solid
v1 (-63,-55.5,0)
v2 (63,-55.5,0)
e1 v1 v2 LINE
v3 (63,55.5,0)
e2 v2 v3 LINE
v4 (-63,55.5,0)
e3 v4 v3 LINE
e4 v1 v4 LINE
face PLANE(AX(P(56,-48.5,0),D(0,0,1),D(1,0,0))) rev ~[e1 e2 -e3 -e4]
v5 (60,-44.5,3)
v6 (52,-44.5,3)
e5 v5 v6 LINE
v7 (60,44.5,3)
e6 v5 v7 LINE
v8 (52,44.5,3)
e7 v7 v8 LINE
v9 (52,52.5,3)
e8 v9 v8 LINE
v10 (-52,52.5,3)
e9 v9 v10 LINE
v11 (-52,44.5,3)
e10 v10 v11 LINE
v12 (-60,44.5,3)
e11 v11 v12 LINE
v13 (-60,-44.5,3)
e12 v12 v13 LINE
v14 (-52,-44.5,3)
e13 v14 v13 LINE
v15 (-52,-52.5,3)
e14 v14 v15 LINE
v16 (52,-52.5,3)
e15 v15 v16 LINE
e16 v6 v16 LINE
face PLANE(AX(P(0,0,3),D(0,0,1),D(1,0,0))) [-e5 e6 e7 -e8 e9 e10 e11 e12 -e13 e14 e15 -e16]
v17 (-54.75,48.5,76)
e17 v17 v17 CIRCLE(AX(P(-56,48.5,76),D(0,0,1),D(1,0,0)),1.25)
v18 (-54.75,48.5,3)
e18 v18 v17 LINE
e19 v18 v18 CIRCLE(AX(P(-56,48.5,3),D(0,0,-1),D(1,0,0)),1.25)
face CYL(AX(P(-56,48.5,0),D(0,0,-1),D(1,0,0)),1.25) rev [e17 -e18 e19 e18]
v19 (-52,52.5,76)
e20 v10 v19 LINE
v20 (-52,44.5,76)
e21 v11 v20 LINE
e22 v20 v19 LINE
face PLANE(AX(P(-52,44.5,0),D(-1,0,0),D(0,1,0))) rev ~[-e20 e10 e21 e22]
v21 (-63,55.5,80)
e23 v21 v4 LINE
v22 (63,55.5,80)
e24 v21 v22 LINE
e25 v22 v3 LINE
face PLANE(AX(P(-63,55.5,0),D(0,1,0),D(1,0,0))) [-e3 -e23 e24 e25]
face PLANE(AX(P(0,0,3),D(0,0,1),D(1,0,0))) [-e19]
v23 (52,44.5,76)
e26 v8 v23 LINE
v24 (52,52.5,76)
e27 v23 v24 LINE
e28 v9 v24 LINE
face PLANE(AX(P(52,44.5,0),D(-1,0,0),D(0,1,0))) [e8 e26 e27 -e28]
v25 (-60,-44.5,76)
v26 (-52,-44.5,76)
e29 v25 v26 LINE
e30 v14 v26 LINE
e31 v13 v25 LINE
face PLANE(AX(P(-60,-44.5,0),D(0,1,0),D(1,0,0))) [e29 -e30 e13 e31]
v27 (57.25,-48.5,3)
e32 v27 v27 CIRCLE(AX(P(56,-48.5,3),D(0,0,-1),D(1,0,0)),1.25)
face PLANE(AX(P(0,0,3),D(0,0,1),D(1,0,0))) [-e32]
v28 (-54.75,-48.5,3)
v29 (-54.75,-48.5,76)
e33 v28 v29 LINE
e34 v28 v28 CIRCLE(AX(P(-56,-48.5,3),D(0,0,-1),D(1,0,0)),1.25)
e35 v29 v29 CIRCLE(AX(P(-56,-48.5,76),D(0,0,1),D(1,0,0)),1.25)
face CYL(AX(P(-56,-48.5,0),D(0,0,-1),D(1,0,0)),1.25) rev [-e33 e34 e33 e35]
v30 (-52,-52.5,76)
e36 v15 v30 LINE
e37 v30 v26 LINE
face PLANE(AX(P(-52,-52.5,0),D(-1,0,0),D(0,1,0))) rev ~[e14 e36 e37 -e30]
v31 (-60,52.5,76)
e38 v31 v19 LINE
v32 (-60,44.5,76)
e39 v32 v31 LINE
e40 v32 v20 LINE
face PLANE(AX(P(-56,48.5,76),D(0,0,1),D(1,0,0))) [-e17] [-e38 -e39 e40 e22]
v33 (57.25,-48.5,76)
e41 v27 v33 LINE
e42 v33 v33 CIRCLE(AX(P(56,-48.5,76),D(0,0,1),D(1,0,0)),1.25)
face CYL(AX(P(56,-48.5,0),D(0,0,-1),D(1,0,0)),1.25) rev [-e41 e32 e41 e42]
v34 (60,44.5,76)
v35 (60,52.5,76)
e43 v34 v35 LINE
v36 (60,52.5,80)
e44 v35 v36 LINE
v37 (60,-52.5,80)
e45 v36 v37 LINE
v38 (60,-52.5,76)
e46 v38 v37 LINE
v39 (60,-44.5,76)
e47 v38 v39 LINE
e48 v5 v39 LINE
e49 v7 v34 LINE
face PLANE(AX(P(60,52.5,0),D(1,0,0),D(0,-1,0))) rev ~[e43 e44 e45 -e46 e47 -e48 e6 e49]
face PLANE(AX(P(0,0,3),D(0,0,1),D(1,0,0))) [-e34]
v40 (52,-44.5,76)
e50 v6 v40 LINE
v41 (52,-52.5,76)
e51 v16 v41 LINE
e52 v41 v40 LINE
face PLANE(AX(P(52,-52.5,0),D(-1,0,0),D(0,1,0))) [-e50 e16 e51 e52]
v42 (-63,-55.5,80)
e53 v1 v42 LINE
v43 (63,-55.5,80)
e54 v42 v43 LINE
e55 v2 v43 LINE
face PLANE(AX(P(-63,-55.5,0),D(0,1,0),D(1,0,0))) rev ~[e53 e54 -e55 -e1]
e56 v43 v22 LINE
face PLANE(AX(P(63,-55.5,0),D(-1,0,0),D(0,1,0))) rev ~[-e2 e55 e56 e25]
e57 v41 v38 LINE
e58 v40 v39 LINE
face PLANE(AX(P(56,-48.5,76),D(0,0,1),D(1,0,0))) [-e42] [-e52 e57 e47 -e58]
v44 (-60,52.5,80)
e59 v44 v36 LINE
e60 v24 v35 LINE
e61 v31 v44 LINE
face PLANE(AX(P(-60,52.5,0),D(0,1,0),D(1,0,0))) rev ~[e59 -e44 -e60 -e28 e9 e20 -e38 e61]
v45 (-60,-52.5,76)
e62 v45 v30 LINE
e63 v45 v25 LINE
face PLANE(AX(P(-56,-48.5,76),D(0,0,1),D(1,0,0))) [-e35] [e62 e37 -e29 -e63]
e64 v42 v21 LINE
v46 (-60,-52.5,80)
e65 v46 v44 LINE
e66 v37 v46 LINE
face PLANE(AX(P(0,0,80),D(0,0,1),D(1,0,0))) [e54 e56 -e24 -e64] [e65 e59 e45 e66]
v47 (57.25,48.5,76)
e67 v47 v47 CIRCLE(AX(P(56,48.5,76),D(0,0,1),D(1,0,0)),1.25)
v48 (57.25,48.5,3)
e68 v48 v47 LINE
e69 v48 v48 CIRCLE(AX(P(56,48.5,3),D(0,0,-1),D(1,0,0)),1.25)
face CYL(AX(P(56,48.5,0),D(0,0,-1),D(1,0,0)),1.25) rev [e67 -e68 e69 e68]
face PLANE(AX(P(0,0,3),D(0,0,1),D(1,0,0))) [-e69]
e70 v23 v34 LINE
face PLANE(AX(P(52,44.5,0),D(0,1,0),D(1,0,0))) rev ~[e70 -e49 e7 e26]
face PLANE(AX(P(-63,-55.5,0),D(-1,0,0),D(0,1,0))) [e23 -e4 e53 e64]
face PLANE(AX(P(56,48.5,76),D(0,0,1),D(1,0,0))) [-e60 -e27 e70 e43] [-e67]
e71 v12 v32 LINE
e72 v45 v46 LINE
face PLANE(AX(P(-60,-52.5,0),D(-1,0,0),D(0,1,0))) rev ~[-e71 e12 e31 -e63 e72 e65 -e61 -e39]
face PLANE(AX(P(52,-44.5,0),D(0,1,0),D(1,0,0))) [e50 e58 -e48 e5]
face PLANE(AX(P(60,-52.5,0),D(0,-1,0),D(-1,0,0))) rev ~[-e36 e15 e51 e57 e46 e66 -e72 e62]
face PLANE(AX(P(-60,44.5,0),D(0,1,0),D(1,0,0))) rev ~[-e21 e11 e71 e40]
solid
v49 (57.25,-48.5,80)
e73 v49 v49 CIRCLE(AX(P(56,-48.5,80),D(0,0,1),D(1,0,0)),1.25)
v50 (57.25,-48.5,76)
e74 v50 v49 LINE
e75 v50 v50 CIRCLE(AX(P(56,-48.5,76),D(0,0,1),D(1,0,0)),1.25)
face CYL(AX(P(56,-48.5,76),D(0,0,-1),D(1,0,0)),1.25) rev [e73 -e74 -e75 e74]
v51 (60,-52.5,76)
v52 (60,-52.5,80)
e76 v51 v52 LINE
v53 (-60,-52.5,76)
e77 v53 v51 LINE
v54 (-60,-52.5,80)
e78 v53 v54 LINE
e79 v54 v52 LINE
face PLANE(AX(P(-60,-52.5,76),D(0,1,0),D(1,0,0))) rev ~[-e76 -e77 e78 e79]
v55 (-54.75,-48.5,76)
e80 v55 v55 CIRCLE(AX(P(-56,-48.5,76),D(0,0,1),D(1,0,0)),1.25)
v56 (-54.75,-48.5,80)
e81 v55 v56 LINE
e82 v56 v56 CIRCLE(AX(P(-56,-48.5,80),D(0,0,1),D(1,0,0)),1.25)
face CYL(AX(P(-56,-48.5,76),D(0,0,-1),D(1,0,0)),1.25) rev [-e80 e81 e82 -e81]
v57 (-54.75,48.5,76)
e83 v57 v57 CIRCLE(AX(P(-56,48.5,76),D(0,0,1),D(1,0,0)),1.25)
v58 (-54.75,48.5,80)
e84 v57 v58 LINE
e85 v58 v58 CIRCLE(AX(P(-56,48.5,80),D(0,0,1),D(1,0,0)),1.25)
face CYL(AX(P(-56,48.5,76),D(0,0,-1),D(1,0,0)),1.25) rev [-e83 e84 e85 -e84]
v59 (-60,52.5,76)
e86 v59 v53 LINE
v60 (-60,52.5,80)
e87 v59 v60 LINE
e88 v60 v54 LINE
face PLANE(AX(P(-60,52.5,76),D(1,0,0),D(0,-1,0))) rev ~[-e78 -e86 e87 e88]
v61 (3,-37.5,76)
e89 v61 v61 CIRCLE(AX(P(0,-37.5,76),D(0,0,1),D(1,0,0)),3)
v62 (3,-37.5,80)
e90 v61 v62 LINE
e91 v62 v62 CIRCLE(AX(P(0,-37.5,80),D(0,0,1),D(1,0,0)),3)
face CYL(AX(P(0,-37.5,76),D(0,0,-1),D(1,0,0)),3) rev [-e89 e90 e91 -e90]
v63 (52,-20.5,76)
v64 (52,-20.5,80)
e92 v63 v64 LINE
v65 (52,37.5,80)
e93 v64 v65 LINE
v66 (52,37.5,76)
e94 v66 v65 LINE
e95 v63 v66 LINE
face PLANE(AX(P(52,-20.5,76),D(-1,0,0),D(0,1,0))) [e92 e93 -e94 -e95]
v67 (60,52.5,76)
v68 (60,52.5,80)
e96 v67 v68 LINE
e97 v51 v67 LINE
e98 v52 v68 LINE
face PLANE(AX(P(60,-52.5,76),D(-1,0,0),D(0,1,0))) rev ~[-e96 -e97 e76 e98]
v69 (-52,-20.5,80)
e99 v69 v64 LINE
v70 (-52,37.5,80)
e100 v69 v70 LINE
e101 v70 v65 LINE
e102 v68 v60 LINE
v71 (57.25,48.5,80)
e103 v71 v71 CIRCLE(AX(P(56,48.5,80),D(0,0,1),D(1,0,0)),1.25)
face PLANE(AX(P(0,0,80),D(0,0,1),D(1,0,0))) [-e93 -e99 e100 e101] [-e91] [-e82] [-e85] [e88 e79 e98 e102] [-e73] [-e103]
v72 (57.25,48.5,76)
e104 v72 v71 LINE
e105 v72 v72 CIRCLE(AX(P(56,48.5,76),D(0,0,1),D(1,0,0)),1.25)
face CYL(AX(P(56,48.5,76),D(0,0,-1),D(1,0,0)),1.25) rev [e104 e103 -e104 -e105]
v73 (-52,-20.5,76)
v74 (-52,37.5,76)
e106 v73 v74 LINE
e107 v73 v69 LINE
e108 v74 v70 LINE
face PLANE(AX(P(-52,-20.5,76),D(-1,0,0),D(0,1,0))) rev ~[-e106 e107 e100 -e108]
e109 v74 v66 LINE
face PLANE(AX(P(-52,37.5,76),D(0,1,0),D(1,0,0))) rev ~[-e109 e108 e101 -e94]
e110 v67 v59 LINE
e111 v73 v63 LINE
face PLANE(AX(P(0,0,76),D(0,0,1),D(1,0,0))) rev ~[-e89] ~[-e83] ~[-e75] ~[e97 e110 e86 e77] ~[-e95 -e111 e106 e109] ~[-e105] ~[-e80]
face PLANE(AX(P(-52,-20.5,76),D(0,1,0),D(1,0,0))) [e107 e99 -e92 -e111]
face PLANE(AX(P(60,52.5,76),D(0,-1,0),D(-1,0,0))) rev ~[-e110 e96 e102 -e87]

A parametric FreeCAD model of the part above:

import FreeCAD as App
import Part
import Sketcher

V = App.Vector
Q = App.Units.Quantity

doc = App.newDocument("Part")
body = doc.addObject("PartDesign::Body", "Body")

sketch1 = body.newObject("Sketcher::SketchObject", "Sketch")
sketch1.AttachmentSupport = (doc.getObject("XY_Plane"), [""])
sketch1.MapMode = "FlatFace"
sketch1.addGeometry(Part.LineSegment(V(-63, 56, 0), V(-63, -56, 0)), False)
sketch1.addGeometry(Part.LineSegment(V(-63, -56, 0), V(63, -56, 0)), False)
sketch1.addGeometry(Part.LineSegment(V(63, -56, 0), V(63, 56, 0)), False)
sketch1.addGeometry(Part.LineSegment(V(63, 56, 0), V(-63, 56, 0)), False)
sketch1.addConstraint(Sketcher.Constraint("Coincident", 0, 2, 1, 1))
sketch1.addConstraint(Sketcher.Constraint("Coincident", 1, 2, 2, 1))
sketch1.addConstraint(Sketcher.Constraint("Coincident", 2, 2, 3, 1))
sketch1.addConstraint(Sketcher.Constraint("Coincident", 3, 2, 0, 1))
sketch1.addConstraint(Sketcher.Constraint("Vertical", 0))
sketch1.addConstraint(Sketcher.Constraint("Horizontal", 1))
sketch1.addConstraint(Sketcher.Constraint("Vertical", 2))
sketch1.addConstraint(Sketcher.Constraint("Horizontal", 3))
sketch1.addConstraint(Sketcher.Constraint("Symmetric", 0, 2, 2, 2, -1, 1))
sketch1.addConstraint(Sketcher.Constraint("DistanceX", 1, 1, 1, 2, Q("126 mm")))
sketch1.addConstraint(Sketcher.Constraint("DistanceY", 0, 2, 0, 1, Q("111 mm")))
pad1 = body.newObject("PartDesign::Pad", "Pad")
pad1.Profile = sketch1
pad1.Length = 3

sketch2 = body.newObject("Sketcher::SketchObject", "Sketch001")
sketch2.AttachmentSupport = (doc.getObject("XY_Plane"), [""])
sketch2.MapMode = "FlatFace"
sketch2.addGeometry(Part.LineSegment(V(-63, 56, 0), V(-63, -56, 0)), False)
sketch2.addGeometry(Part.LineSegment(V(-63, -56, 0), V(63, -56, 0)), False)
sketch2.addGeometry(Part.LineSegment(V(63, -56, 0), V(63, 56, 0)), False)
sketch2.addGeometry(Part.LineSegment(V(63, 56, 0), V(-63, 56, 0)), False)
sketch2.addGeometry(Part.LineSegment(V(60, 52, 0), V(60, -52, 0)), False)
sketch2.addGeometry(Part.LineSegment(V(60, -52, 0), V(-60, -52, 0)), False)
sketch2.addGeometry(Part.LineSegment(V(-60, -52, 0), V(-60, 52, 0)), False)
sketch2.addGeometry(Part.LineSegment(V(-60, 52, 0), V(60, 52, 0)), False)
sketch2.addConstraint(Sketcher.Constraint("Coincident", 0, 2, 1, 1))
sketch2.addConstraint(Sketcher.Constraint("Coincident", 1, 2, 2, 1))
sketch2.addConstraint(Sketcher.Constraint("Coincident", 2, 2, 3, 1))
sketch2.addConstraint(Sketcher.Constraint("Coincident", 3, 2, 0, 1))
sketch2.addConstraint(Sketcher.Constraint("Coincident", 4, 2, 5, 1))
sketch2.addConstraint(Sketcher.Constraint("Coincident", 5, 2, 6, 1))
sketch2.addConstraint(Sketcher.Constraint("Coincident", 6, 2, 7, 1))
sketch2.addConstraint(Sketcher.Constraint("Coincident", 7, 2, 4, 1))
sketch2.addConstraint(Sketcher.Constraint("Vertical", 0))
sketch2.addConstraint(Sketcher.Constraint("Horizontal", 1))
sketch2.addConstraint(Sketcher.Constraint("Vertical", 2))
sketch2.addConstraint(Sketcher.Constraint("Horizontal", 3))
sketch2.addConstraint(Sketcher.Constraint("Vertical", 4))
sketch2.addConstraint(Sketcher.Constraint("Horizontal", 5))
sketch2.addConstraint(Sketcher.Constraint("Vertical", 6))
sketch2.addConstraint(Sketcher.Constraint("Horizontal", 7))
sketch2.addConstraint(Sketcher.Constraint("Symmetric", 0, 2, 2, 2, -1, 1))
sketch2.addConstraint(Sketcher.Constraint("Symmetric", 4, 2, 6, 2, -1, 1))
sketch2.addConstraint(Sketcher.Constraint("DistanceX", 1, 1, 1, 2, Q("126 mm")))
sketch2.addConstraint(Sketcher.Constraint("DistanceX", 5, 2, 5, 1, Q("120 mm")))
sketch2.addConstraint(Sketcher.Constraint("DistanceY", 0, 2, 0, 1, Q("111 mm")))
sketch2.addConstraint(Sketcher.Constraint("DistanceY", 4, 2, 4, 1, Q("105 mm")))
pad2 = body.newObject("PartDesign::Pad", "Pad001")
pad2.Profile = sketch2
pad2.Length = 80

sketch3 = body.newObject("Sketcher::SketchObject", "Sketch002")
sketch3.AttachmentSupport = (doc.getObject("XY_Plane"), [""])
sketch3.MapMode = "FlatFace"
sketch3.addGeometry(Part.LineSegment(V(52, -44.5, 0), V(52, -52.5, 0)), False)
sketch3.addGeometry(Part.LineSegment(V(52, -52.5, 0), V(60, -52.5, 0)), False)
sketch3.addGeometry(Part.LineSegment(V(60, -52.5, 0), V(60, -44.5, 0)), False)
sketch3.addGeometry(Part.LineSegment(V(60, -44.5, 0), V(52, -44.5, 0)), False)
sketch3.addGeometry(Part.Circle(V(56, -48.5, 0), V(0, 0, 1), 1.2), False)
sketch3.addGeometry(Part.LineSegment(V(52, 52.5, 0), V(52, 44.5, 0)), False)
sketch3.addGeometry(Part.LineSegment(V(52, 44.5, 0), V(60, 44.5, 0)), False)
sketch3.addGeometry(Part.LineSegment(V(60, 44.5, 0), V(60, 52.5, 0)), False)
sketch3.addGeometry(Part.LineSegment(V(60, 52.5, 0), V(52, 52.5, 0)), False)
sketch3.addGeometry(Part.Circle(V(56, 48.5, 0), V(0, 0, 1), 1.2), False)
sketch3.addGeometry(Part.LineSegment(V(-60, -44.5, 0), V(-60, -52.5, 0)), False)
sketch3.addGeometry(Part.LineSegment(V(-60, -52.5, 0), V(-52, -52.5, 0)), False)
sketch3.addGeometry(Part.LineSegment(V(-52, -52.5, 0), V(-52, -44.5, 0)), False)
sketch3.addGeometry(Part.LineSegment(V(-52, -44.5, 0), V(-60, -44.5, 0)), False)
sketch3.addGeometry(Part.Circle(V(-56, -48.5, 0), V(0, 0, 1), 1.2), False)
sketch3.addGeometry(Part.LineSegment(V(-60, 52.5, 0), V(-60, 44.5, 0)), False)
sketch3.addGeometry(Part.LineSegment(V(-60, 44.5, 0), V(-52, 44.5, 0)), False)
sketch3.addGeometry(Part.LineSegment(V(-52, 44.5, 0), V(-52, 52.5, 0)), False)
sketch3.addGeometry(Part.LineSegment(V(-52, 52.5, 0), V(-60, 52.5, 0)), False)
sketch3.addGeometry(Part.Circle(V(-56, 48.5, 0), V(0, 0, 1), 1.2), False)
sketch3.addConstraint(Sketcher.Constraint("Coincident", 0, 2, 1, 1))
sketch3.addConstraint(Sketcher.Constraint("Coincident", 1, 2, 2, 1))
sketch3.addConstraint(Sketcher.Constraint("Coincident", 2, 2, 3, 1))
sketch3.addConstraint(Sketcher.Constraint("Coincident", 3, 2, 0, 1))
sketch3.addConstraint(Sketcher.Constraint("Coincident", 5, 2, 6, 1))
sketch3.addConstraint(Sketcher.Constraint("Coincident", 6, 2, 7, 1))
sketch3.addConstraint(Sketcher.Constraint("Coincident", 7, 2, 8, 1))
sketch3.addConstraint(Sketcher.Constraint("Coincident", 8, 2, 5, 1))
sketch3.addConstraint(Sketcher.Constraint("Coincident", 10, 2, 11, 1))
sketch3.addConstraint(Sketcher.Constraint("Coincident", 11, 2, 12, 1))
sketch3.addConstraint(Sketcher.Constraint("Coincident", 12, 2, 13, 1))
sketch3.addConstraint(Sketcher.Constraint("Coincident", 13, 2, 10, 1))
sketch3.addConstraint(Sketcher.Constraint("Coincident", 15, 2, 16, 1))
sketch3.addConstraint(Sketcher.Constraint("Coincident", 16, 2, 17, 1))
sketch3.addConstraint(Sketcher.Constraint("Coincident", 17, 2, 18, 1))
sketch3.addConstraint(Sketcher.Constraint("Coincident", 18, 2, 15, 1))
sketch3.addConstraint(Sketcher.Constraint("Vertical", 0))
sketch3.addConstraint(Sketcher.Constraint("Horizontal", 1))
sketch3.addConstraint(Sketcher.Constraint("Vertical", 2))
sketch3.addConstraint(Sketcher.Constraint("Horizontal", 3))
sketch3.addConstraint(Sketcher.Constraint("Vertical", 5))
sketch3.addConstraint(Sketcher.Constraint("Horizontal", 6))
sketch3.addConstraint(Sketcher.Constraint("Vertical", 7))
sketch3.addConstraint(Sketcher.Constraint("Horizontal", 8))
sketch3.addConstraint(Sketcher.Constraint("Vertical", 10))
sketch3.addConstraint(Sketcher.Constraint("Horizontal", 11))
sketch3.addConstraint(Sketcher.Constraint("Vertical", 12))
sketch3.addConstraint(Sketcher.Constraint("Horizontal", 13))
sketch3.addConstraint(Sketcher.Constraint("Vertical", 15))
sketch3.addConstraint(Sketcher.Constraint("Horizontal", 16))
sketch3.addConstraint(Sketcher.Constraint("Vertical", 17))
sketch3.addConstraint(Sketcher.Constraint("Horizontal", 18))
sketch3.addConstraint(Sketcher.Constraint("Equal", 4, 9))
sketch3.addConstraint(Sketcher.Constraint("Equal", 9, 14))
sketch3.addConstraint(Sketcher.Constraint("Equal", 14, 19))
sketch3.addConstraint(Sketcher.Constraint("Symmetric", 9, 3, 14, 3, -1, 1))
sketch3.addConstraint(Sketcher.Constraint("Symmetric", 4, 3, 19, 3, -1, 1))
sketch3.addConstraint(Sketcher.Constraint("Symmetric", 7, 2, 10, 2, -1, 1))
sketch3.addConstraint(Sketcher.Constraint("Symmetric", 5, 2, 12, 2, -1, 1))
sketch3.addConstraint(Sketcher.Constraint("Symmetric", 2, 2, 15, 2, -1, 1))
sketch3.addConstraint(Sketcher.Constraint("Symmetric", 0, 2, 17, 2, -1, 1))
sketch3.addConstraint(Sketcher.Constraint("Symmetric", 4, 3, 14, 3, -2))
sketch3.addConstraint(Sketcher.Constraint("Symmetric", 1, 2, 10, 2, -2))
sketch3.addConstraint(Sketcher.Constraint("Symmetric", 3, 2, 12, 2, -2))
sketch3.addConstraint(Sketcher.Constraint("Equal", 18, 0))
sketch3.addConstraint(Sketcher.Constraint("Diameter", 4, Q("2.5 mm")))
sketch3.addConstraint(Sketcher.Constraint("DistanceX", 1, 1, 1, 2, Q("8 mm")))
sketch3.addConstraint(Sketcher.Constraint("DistanceX", -1, 1, 4, 3, Q("56 mm")))
sketch3.addConstraint(Sketcher.Constraint("DistanceX", -1, 1, 0, 2, Q("52 mm")))
sketch3.addConstraint(Sketcher.Constraint("DistanceY", 4, 3, 9, 3, Q("97 mm")))
sketch3.addConstraint(Sketcher.Constraint("DistanceY", 0, 2, 4, 3, Q("4 mm")))
pad3 = body.newObject("PartDesign::Pad", "Pad002")
pad3.Profile = sketch3
pad3.Length = 76
body2 = doc.addObject("PartDesign::Body", "Body001")

sketch4 = body2.newObject("Sketcher::SketchObject", "Sketch003")
sketch4.AttachmentSupport = (doc.getObject("XY_Plane001"), [""])
sketch4.MapMode = "FlatFace"
sketch4.addGeometry(Part.LineSegment(V(-60, -52.5, 0), V(60, -52.5, 0)), False)
sketch4.addGeometry(Part.LineSegment(V(60, -52.5, 0), V(60, 52.5, 0)), False)
sketch4.addGeometry(Part.LineSegment(V(60, 52.5, 0), V(-60, 52.5, 0)), False)
sketch4.addGeometry(Part.LineSegment(V(-60, 52.5, 0), V(-60, -52.5, 0)), False)
sketch4.addGeometry(Part.Circle(V(-56, -48.5, 0), V(0, 0, 1), 1.2), False)
sketch4.addGeometry(Part.Circle(V(0, -37.5, 0), V(0, 0, 1), 3), False)
sketch4.addGeometry(Part.Circle(V(56, -48.5, 0), V(0, 0, 1), 1.2), False)
sketch4.addGeometry(Part.Circle(V(-56, 48.5, 0), V(0, 0, 1), 1.2), False)
sketch4.addGeometry(Part.LineSegment(V(52, -20.5, 0), V(-52, -20.5, 0)), False)
sketch4.addGeometry(Part.LineSegment(V(-52, -20.5, 0), V(-52, 37.5, 0)), False)
sketch4.addGeometry(Part.LineSegment(V(-52, 37.5, 0), V(52, 37.5, 0)), False)
sketch4.addGeometry(Part.LineSegment(V(52, 37.5, 0), V(52, -20.5, 0)), False)
sketch4.addGeometry(Part.Circle(V(56, 48.5, 0), V(0, 0, 1), 1.2), False)
sketch4.addConstraint(Sketcher.Constraint("Coincident", 0, 2, 1, 1))
sketch4.addConstraint(Sketcher.Constraint("Coincident", 1, 2, 2, 1))
sketch4.addConstraint(Sketcher.Constraint("Coincident", 2, 2, 3, 1))
sketch4.addConstraint(Sketcher.Constraint("Coincident", 3, 2, 0, 1))
sketch4.addConstraint(Sketcher.Constraint("Coincident", 8, 2, 9, 1))
sketch4.addConstraint(Sketcher.Constraint("Coincident", 9, 2, 10, 1))
sketch4.addConstraint(Sketcher.Constraint("Coincident", 10, 2, 11, 1))
sketch4.addConstraint(Sketcher.Constraint("Coincident", 11, 2, 8, 1))
sketch4.addConstraint(Sketcher.Constraint("Horizontal", 0))
sketch4.addConstraint(Sketcher.Constraint("Vertical", 1))
sketch4.addConstraint(Sketcher.Constraint("Horizontal", 2))
sketch4.addConstraint(Sketcher.Constraint("Vertical", 3))
sketch4.addConstraint(Sketcher.Constraint("Horizontal", 8))
sketch4.addConstraint(Sketcher.Constraint("Vertical", 9))
sketch4.addConstraint(Sketcher.Constraint("Horizontal", 10))
sketch4.addConstraint(Sketcher.Constraint("Vertical", 11))
sketch4.addConstraint(Sketcher.Constraint("Equal", 4, 6))
sketch4.addConstraint(Sketcher.Constraint("Equal", 6, 7))
sketch4.addConstraint(Sketcher.Constraint("Equal", 7, 12))
sketch4.addConstraint(Sketcher.Constraint("Symmetric", 6, 3, 7, 3, -1, 1))
sketch4.addConstraint(Sketcher.Constraint("Symmetric", 4, 3, 12, 3, -1, 1))
sketch4.addConstraint(Sketcher.Constraint("Symmetric", 0, 2, 2, 2, -1, 1))
sketch4.addConstraint(Sketcher.Constraint("Symmetric", 4, 3, 6, 3, -2))
sketch4.addConstraint(Sketcher.Constraint("PointOnObject", 5, 3, -2))
sketch4.addConstraint(Sketcher.Constraint("Diameter", 5, Q("6 mm")))
sketch4.addConstraint(Sketcher.Constraint("Diameter", 4, Q("2.5 mm")))
sketch4.addConstraint(Sketcher.Constraint("DistanceX", 0, 1, 0, 2, Q("120 mm")))
sketch4.addConstraint(Sketcher.Constraint("DistanceX", 8, 2, 8, 1, Q("104 mm")))
sketch4.addConstraint(Sketcher.Constraint("DistanceY", 1, 1, 1, 2, Q("105 mm")))
sketch4.addConstraint(Sketcher.Constraint("DistanceY", 9, 1, 9, 2, Q("58 mm")))
sketch4.addConstraint(Sketcher.Constraint("DistanceX", 4, 3, -1, 1, Q("56 mm")))
sketch4.addConstraint(Sketcher.Constraint("DistanceX", 8, 2, -1, 1, Q("52 mm")))
sketch4.addConstraint(Sketcher.Constraint("DistanceY", 4, 3, 5, 3, Q("11 mm")))
sketch4.addConstraint(Sketcher.Constraint("DistanceY", 4, 3, 7, 3, Q("97 mm")))
sketch4.addConstraint(Sketcher.Constraint("DistanceY", 4, 3, 8, 2, Q("28 mm")))
pad4 = body2.newObject("PartDesign::Pad", "Pad003")
pad4.Profile = sketch4
pad4.Length = 4
body3 = doc.addObject("PartDesign::Body", "Body002")
doc.recompute()

body2.Placement = App.Placement(V(0, 0, 76), App.Rotation(V(0, 0, 1), 0))
boolean = body3.newObject("PartDesign::Boolean", "Boolean")
boolean.Type = "Fuse"
boolean.addObjects([body2])

doc.recompute()
